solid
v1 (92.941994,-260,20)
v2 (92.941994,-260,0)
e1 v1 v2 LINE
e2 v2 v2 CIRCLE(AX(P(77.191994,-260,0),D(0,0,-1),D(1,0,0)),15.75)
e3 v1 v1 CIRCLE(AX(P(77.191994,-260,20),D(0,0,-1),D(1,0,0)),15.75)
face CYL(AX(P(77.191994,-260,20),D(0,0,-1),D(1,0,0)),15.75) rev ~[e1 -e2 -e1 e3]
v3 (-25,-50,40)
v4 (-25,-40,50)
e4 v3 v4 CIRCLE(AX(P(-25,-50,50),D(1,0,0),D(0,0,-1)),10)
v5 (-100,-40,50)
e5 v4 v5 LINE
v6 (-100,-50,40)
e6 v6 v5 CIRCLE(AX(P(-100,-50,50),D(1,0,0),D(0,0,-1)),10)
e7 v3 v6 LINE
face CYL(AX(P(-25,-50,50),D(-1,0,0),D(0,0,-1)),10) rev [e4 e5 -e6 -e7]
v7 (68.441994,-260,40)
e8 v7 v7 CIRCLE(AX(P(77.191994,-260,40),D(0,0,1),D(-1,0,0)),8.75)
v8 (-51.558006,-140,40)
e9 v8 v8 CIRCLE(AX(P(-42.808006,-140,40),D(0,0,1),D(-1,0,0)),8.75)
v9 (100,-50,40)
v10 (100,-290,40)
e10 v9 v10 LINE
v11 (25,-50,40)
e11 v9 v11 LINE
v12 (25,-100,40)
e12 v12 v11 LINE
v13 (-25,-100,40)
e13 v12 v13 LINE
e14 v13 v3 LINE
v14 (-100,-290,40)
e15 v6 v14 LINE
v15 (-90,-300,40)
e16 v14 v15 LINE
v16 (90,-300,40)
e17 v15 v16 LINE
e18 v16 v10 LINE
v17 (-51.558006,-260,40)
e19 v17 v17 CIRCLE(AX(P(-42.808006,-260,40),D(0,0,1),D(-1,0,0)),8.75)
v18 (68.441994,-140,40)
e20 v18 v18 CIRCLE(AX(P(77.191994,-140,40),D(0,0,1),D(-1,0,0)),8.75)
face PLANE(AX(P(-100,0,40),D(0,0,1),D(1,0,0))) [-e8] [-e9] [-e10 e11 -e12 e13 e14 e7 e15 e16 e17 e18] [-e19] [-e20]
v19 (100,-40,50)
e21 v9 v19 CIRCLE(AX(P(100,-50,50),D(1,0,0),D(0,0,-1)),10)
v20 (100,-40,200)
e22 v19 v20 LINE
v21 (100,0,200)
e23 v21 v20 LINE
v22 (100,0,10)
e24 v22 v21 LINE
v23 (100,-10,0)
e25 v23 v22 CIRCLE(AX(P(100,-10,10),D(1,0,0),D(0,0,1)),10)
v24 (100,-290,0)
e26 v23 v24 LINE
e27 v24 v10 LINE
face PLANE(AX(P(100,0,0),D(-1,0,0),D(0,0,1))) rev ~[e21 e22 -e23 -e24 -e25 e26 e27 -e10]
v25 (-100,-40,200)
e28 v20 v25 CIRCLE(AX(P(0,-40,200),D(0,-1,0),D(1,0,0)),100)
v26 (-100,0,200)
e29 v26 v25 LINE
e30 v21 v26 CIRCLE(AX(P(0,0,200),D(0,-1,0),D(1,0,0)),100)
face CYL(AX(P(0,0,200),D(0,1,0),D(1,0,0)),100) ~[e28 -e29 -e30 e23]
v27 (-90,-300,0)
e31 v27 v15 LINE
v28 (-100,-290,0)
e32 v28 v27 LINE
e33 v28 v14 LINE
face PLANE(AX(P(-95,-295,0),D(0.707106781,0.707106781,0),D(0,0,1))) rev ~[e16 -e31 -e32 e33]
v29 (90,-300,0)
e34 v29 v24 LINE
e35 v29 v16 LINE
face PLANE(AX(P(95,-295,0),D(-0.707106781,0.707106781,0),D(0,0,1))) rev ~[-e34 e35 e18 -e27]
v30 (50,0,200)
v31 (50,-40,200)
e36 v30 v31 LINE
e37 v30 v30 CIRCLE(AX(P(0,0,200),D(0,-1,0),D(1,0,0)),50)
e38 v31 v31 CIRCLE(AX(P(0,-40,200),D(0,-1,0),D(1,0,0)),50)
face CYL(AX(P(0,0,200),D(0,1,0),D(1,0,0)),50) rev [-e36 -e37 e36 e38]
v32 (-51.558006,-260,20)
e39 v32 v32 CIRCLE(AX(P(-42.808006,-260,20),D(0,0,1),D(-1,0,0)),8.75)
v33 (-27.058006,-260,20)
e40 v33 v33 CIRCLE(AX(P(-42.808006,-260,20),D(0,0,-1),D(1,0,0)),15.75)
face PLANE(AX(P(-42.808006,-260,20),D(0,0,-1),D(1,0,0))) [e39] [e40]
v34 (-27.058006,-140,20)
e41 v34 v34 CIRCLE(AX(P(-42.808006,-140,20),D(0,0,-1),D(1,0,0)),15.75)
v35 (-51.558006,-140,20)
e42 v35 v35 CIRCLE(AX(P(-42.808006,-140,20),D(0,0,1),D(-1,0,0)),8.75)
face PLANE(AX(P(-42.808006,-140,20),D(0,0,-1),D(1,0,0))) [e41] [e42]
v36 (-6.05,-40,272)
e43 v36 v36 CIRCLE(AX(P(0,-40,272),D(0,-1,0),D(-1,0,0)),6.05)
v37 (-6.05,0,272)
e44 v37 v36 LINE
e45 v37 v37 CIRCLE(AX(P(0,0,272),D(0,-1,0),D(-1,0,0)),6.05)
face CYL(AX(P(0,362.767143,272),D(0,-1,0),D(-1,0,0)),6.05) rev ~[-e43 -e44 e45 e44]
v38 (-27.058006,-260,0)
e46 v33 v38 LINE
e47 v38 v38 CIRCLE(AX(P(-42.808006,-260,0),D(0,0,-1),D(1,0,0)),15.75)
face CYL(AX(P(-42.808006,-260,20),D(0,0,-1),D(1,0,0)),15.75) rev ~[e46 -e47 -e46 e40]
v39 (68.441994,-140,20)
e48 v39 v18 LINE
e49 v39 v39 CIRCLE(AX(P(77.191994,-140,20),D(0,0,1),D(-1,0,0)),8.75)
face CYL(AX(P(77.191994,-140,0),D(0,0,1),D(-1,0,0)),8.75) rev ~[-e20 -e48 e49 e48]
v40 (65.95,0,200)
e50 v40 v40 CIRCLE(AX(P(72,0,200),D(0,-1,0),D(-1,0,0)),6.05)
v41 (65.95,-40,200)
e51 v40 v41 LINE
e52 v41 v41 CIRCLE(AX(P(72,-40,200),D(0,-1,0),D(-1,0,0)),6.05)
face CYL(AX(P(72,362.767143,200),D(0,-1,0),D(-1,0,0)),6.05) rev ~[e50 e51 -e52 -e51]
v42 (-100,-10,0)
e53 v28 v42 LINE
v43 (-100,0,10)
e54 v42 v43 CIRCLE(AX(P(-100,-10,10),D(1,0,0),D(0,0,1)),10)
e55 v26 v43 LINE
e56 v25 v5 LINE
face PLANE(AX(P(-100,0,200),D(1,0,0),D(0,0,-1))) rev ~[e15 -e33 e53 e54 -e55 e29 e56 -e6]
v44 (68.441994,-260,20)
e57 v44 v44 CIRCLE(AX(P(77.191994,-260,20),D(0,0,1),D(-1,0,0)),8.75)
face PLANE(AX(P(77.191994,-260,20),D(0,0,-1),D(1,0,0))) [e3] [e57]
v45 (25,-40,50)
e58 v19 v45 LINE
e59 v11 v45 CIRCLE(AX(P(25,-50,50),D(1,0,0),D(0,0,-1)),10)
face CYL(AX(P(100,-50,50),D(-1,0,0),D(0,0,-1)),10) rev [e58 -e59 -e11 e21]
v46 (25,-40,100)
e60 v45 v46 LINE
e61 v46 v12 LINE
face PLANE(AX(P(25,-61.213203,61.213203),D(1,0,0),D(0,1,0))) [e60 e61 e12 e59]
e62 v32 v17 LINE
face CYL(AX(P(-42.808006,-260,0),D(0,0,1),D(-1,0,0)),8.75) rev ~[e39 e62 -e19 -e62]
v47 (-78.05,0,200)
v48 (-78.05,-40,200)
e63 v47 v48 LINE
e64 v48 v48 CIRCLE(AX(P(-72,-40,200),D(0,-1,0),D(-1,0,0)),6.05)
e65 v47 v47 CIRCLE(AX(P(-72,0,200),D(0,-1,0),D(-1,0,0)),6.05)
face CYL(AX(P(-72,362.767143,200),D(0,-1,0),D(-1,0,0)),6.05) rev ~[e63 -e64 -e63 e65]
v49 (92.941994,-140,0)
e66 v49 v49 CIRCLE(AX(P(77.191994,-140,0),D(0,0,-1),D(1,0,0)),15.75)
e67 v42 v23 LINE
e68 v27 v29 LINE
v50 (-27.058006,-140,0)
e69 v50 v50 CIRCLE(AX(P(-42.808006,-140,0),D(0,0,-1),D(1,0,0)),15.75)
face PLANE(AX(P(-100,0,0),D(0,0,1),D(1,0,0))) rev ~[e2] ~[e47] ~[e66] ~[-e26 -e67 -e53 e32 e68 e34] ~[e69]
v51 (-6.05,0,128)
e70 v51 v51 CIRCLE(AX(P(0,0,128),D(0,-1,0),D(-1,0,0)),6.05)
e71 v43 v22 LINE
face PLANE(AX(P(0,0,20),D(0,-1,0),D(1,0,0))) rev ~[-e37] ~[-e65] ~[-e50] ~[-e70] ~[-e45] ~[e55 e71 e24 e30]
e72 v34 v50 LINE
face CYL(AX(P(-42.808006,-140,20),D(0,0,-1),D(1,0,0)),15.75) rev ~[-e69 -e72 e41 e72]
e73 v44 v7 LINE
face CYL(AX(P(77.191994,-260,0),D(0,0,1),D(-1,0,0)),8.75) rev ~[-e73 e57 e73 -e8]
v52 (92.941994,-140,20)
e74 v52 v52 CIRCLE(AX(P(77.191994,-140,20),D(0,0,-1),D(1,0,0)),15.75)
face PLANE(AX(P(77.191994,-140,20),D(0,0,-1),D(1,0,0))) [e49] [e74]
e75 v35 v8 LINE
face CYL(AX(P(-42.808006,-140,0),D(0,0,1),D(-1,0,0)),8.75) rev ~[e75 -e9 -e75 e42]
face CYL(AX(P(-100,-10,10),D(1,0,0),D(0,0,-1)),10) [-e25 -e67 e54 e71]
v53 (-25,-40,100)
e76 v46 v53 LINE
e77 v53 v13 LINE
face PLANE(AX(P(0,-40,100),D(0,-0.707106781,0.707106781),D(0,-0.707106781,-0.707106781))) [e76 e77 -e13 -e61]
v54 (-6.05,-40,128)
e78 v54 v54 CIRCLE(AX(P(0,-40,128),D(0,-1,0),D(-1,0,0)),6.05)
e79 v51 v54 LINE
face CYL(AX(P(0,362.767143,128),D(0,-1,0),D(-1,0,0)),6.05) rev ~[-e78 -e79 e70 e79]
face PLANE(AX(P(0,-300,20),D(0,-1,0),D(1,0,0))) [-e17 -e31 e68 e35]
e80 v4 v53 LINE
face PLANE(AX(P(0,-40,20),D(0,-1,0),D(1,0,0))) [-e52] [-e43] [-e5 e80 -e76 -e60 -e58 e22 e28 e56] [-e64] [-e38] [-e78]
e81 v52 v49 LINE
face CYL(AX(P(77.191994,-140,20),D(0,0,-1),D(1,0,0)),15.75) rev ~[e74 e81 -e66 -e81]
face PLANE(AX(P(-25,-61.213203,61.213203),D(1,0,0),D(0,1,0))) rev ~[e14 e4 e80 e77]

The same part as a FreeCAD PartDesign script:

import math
import FreeCAD as App
import Part
import Sketcher


def edges_at(feature, points):
    """Names of the edges that pass closest to the given points."""
    edges = feature.Shape.Edges
    near = lambda p: min(range(len(edges)), key=lambda i: edges[i].distToShape(Part.Vertex(*p))[0])
    return sorted({f"Edge{near(p) + 1}" for p in points})


def add_polygon(sketch, points):
    """Adds a closed chain of lines whose ends are joined by coincident constraints."""
    first, n = sketch.GeometryCount, len(points)
    for a, b in zip(points, points[1:] + points[:1]):
        sketch.addGeometry(Part.LineSegment(App.Vector(*a, 0), App.Vector(*b, 0)), False)
    for i in range(n):
        sketch.addConstraint(Sketcher.Constraint("Coincident", first + i, 2, first + (i + 1) % n, 1))

doc = App.newDocument("Part")
body = doc.addObject("PartDesign::Body", "Body")

sketch1 = doc.addObject("Sketcher::SketchObject", "Sketch")
body.addObject(sketch1)
sketch1.AttachmentSupport = (doc.XZ_Plane, [""])
sketch1.MapMode = "FlatFace"
sketch1.addGeometry([
    Part.LineSegment(App.Vector(-100, 0, 0), App.Vector(100, 0, 0)),
    Part.LineSegment(App.Vector(100, 0, 0), App.Vector(100, 200, 0)),
    Part.ArcOfCircle(Part.Circle(App.Vector(0, 200, 0), App.Vector(0, 0, 1), 100), math.radians(0), math.radians(180)),
    Part.LineSegment(App.Vector(-100, 200, 0), App.Vector(-100, 0, 0)),
    Part.Circle(App.Vector(0, 200, 0), App.Vector(0, 0, 1), 50),
], False)
sketch1.addConstraint([
    Sketcher.Constraint("Coincident", 0, 2, 1, 1),
    Sketcher.Constraint("Tangent", 1, 2, 2, 1),
    Sketcher.Constraint("Tangent", 2, 2, 3, 1),
    Sketcher.Constraint("Coincident", 3, 2, 0, 1),
    Sketcher.Constraint("Horizontal", 0),
    Sketcher.Constraint("Vertical", 1),
    Sketcher.Constraint("Vertical", 3),
    Sketcher.Constraint("Coincident", 4, 3, 2, 3),
    Sketcher.Constraint("Symmetric", 0, 2, 3, 2, -1, 1),
    Sketcher.Constraint("Equal", 0, 1),
    Sketcher.Constraint("Diameter", 4, 100.0),
    Sketcher.Constraint("Radius", 2, 100.0),
])
pad1 = doc.addObject("PartDesign::Pad", "Pad")
body.addObject(pad1)
pad1.Profile = sketch1
pad1.Length = 40

sketch2 = doc.addObject("Sketcher::SketchObject", "Sketch001")
body.addObject(sketch2)
sketch2.AttachmentSupport = (doc.XZ_Plane, [""])
sketch2.MapMode = "FlatFace"
sketch2.addGeometry([
    Part.Circle(App.Vector(0, 272, 0), App.Vector(0, 0, 1), 6.05),
    Part.Circle(App.Vector(72, 200, 0), App.Vector(0, 0, 1), 6.05),
    Part.Circle(App.Vector(0, 128, 0), App.Vector(0, 0, 1), 6.05),
    Part.Circle(App.Vector(-72, 200, 0), App.Vector(0, 0, 1), 6.05),
], False)
sketch2.addConstraint([
    Sketcher.Constraint("Equal", 0, 1),
    Sketcher.Constraint("Equal", 1, 2),
    Sketcher.Constraint("Equal", 2, 3),
    Sketcher.Constraint("Symmetric", 1, 3, 3, 3, -2),
    Sketcher.Constraint("PointOnObject", 0, 3, -2),
    Sketcher.Constraint("PointOnObject", 2, 3, -2),
    Sketcher.Constraint("Diameter", 0, 12.1),
    Sketcher.Constraint("DistanceY", -1, 1, 0, 3, 272.0),
    Sketcher.Constraint("DistanceX", -1, 1, 1, 3, 72.0),
    Sketcher.Constraint("DistanceY", -1, 1, 1, 3, 200.0),
    Sketcher.Constraint("DistanceY", -1, 1, 2, 3, 128.0),
])
doc.recompute()
hole = doc.addObject("PartDesign::Hole", "Hole")
body.addObject(hole)
hole.Profile = sketch2
hole.ThreadType = "None"
hole.Diameter = 12.1
hole.DepthType = "ThroughAll"
hole.Reversed = True

sketch3 = doc.addObject("Sketcher::SketchObject", "Sketch002")
body.addObject(sketch3)
sketch3.AttachmentSupport = (doc.XZ_Plane, [""])
sketch3.MapMode = "FlatFace"
add_polygon(sketch3, [(-100, 40), (-100, 0), (100, 0), (100, 40)])
sketch3.addConstraint([
    Sketcher.Constraint("Vertical", 0),
    Sketcher.Constraint("Horizontal", 1),
    Sketcher.Constraint("Vertical", 2),
    Sketcher.Constraint("Horizontal", 3),
    Sketcher.Constraint("Symmetric", 0, 2, 1, 2, -1, 1),
    Sketcher.Constraint("DistanceX", 1, 1, 1, 2, 200.0),
    Sketcher.Constraint("DistanceY", 0, 2, 0, 1, 40.0),
])
pad2 = doc.addObject("PartDesign::Pad", "Pad001")
body.addObject(pad2)
pad2.Profile = sketch3
pad2.Length = 300

sketch4 = doc.addObject("Sketcher::SketchObject", "Sketch003")
body.addObject(sketch4)
sketch4.AttachmentSupport = (doc.YZ_Plane, [""])
sketch4.MapMode = "FlatFace"
add_polygon(sketch4, [(-100, 40), (-40, 40), (-40, 100)])
sketch4.addConstraint([
    Sketcher.Constraint("Horizontal", 0),
    Sketcher.Constraint("Vertical", 1),
    Sketcher.Constraint("Equal", 0, 1),
    Sketcher.Constraint("DistanceX", 0, 1, 0, 2, 60.0),
    Sketcher.Constraint("DistanceX", 0, 2, -1, 1, 40.0),
    Sketcher.Constraint("DistanceY", -1, 1, 0, 2, 40.0),
])
pad3 = doc.addObject("PartDesign::Pad", "Pad002")
body.addObject(pad3)
pad3.Profile = sketch4
pad3.Length = 50
pad3.Midplane = True
doc.recompute()

chamfer = doc.addObject("PartDesign::Chamfer", "Chamfer")
body.addObject(chamfer)
chamfer.Base = (pad3, edges_at(pad3, [(-100, -300, 20), (100, -300, 20)]))
chamfer.Size = 10
doc.recompute()

fillet = doc.addObject("PartDesign::Fillet", "Fillet")
body.addObject(fillet)
fillet.Base = (chamfer, edges_at(chamfer, [(-62.5, -40, 40), (62.5, -40, 40), (0, 0, 0)]))
fillet.Radius = 10

sketch5 = doc.addObject("Sketcher::SketchObject", "Sketch004")
body.addObject(sketch5)
sketch5.AttachmentSupport = (doc.XY_Plane, [""])
sketch5.MapMode = "FlatFace"
sketch5.addGeometry([
    Part.Circle(App.Vector(-42.808006, -260, 0), App.Vector(0, 0, 1), 8.75),
    Part.Circle(App.Vector(77.191994, -260, 0), App.Vector(0, 0, 1), 8.75),
    Part.Circle(App.Vector(77.191994, -140, 0), App.Vector(0, 0, 1), 8.75),
    Part.Circle(App.Vector(-42.808006, -140, 0), App.Vector(0, 0, 1), 8.75),
], False)
sketch5.addConstraint([
    Sketcher.Constraint("Equal", 0, 1),
    Sketcher.Constraint("Equal", 1, 2),
    Sketcher.Constraint("Equal", 2, 3),
    Sketcher.Constraint("Horizontal", 0, 3, 1, 3),
    Sketcher.Constraint("Horizontal", 2, 3, 3, 3),
    Sketcher.Constraint("Vertical", 1, 3, 2, 3),
    Sketcher.Constraint("Vertical", 0, 3, 3, 3),
    Sketcher.Constraint("Diameter", 0, 17.5),
    Sketcher.Constraint("DistanceY", 0, 3, -1, 1, 260.0),
    Sketcher.Constraint("DistanceY", 2, 3, -1, 1, 140.0),
    Sketcher.Constraint("DistanceX", 0, 3, 1, 3, 120.0),
    Sketcher.Constraint("DistanceX", 0, 3, -1, 1, 42.808006),
])
doc.recompute()
hole2 = doc.addObject("PartDesign::Hole", "Hole001")
body.addObject(hole2)
hole2.Profile = sketch5
hole2.ThreadType = "None"
hole2.Diameter = 17.5
hole2.DepthType = "ThroughAll"
hole2.HoleCutType = "Counterbore"
hole2.HoleCutDiameter = 31.5
hole2.HoleCutDepth = 20
hole2.Reversed = True

doc.recompute()
